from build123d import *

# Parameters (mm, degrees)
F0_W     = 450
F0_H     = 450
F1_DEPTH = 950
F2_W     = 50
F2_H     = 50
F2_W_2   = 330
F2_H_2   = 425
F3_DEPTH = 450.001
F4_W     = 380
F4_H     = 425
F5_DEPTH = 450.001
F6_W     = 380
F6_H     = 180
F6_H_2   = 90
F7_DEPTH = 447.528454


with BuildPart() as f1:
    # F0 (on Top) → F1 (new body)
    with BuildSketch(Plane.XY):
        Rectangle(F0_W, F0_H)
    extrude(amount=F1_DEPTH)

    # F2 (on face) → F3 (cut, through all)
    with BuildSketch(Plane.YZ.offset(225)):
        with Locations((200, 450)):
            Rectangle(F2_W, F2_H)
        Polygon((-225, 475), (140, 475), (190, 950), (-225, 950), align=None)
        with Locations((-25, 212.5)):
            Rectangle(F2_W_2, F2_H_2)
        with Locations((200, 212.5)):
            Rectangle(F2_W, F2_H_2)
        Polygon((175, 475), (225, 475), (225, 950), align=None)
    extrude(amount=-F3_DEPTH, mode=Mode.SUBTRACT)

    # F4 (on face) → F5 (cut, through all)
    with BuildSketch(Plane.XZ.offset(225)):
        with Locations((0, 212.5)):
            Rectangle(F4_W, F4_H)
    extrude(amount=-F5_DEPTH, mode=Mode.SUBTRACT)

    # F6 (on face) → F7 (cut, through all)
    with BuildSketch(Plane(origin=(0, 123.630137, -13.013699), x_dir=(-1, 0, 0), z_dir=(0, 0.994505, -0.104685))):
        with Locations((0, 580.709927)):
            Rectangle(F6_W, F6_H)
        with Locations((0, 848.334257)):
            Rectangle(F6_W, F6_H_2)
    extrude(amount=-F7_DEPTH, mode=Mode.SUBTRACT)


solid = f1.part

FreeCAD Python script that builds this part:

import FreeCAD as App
import Part
import Sketcher

doc = App.newDocument("Part")
body = doc.addObject("PartDesign::Body", "Body")

# Sketch on XY plane
sketch1 = doc.addObject("Sketcher::SketchObject", "Sketch")
body.addObject(sketch1)
sketch1.AttachmentSupport = (doc.XY_Plane, [""])
sketch1.MapMode = "FlatFace"
sketch1.addGeometry([
    Part.LineSegment(App.Vector(-225, 225, 0), App.Vector(-225, -225, 0)),
    Part.LineSegment(App.Vector(-225, -225, 0), App.Vector(225, -225, 0)),
    Part.LineSegment(App.Vector(225, -225, 0), App.Vector(225, 225, 0)),
    Part.LineSegment(App.Vector(225, 225, 0), App.Vector(-225, 225, 0)),
], False)
sketch1.addConstraint([
    Sketcher.Constraint("Coincident", 0, 2, 1, 1),
    Sketcher.Constraint("Coincident", 1, 2, 2, 1),
    Sketcher.Constraint("Coincident", 2, 2, 3, 1),
    Sketcher.Constraint("Coincident", 3, 2, 0, 1),
    Sketcher.Constraint("Vertical", 0),
    Sketcher.Constraint("Horizontal", 1),
    Sketcher.Constraint("Vertical", 2),
    Sketcher.Constraint("Horizontal", 3),
    Sketcher.Constraint("Symmetric", 0, 2, 2, 2, -1, 1),
    Sketcher.Constraint("Equal", 3, 0),
    Sketcher.Constraint("DistanceX", 1, 1, 1, 2, 450.0),
])
pad1 = doc.addObject("PartDesign::Pad", "Pad")
body.addObject(pad1)
pad1.Profile = sketch1
pad1.Length = 950

# Sketch on YZ plane
sketch2 = doc.addObject("Sketcher::SketchObject", "Sketch001")
body.addObject(sketch2)
sketch2.AttachmentSupport = (doc.YZ_Plane, [""])
sketch2.MapMode = "FlatFace"
sketch2.AttachmentOffset = App.Placement(App.Vector(0, 0, 225), App.Rotation())
sketch2.addGeometry([
    Part.LineSegment(App.Vector(175, 475, 0), App.Vector(175, 0, 0)),  # 0
    Part.LineSegment(App.Vector(175, 0, 0), App.Vector(225, 0, 0)),  # 1
    Part.LineSegment(App.Vector(225, 0, 0), App.Vector(225, 950, 0)),  # 2
    Part.LineSegment(App.Vector(225, 950, 0), App.Vector(175, 475, 0)),  # 3
    Part.LineSegment(App.Vector(-225, 475, 0), App.Vector(140, 475, 0)),  # 4
    Part.LineSegment(App.Vector(140, 475, 0), App.Vector(190, 950, 0)),  # 5
    Part.LineSegment(App.Vector(190, 950, 0), App.Vector(-225, 950, 0)),  # 6
    Part.LineSegment(App.Vector(-225, 950, 0), App.Vector(-225, 475, 0)),  # 7
    Part.LineSegment(App.Vector(-190, 425, 0), App.Vector(-190, 0, 0)),  # 8
    Part.LineSegment(App.Vector(-190, 0, 0), App.Vector(140, 0, 0)),  # 9
    Part.LineSegment(App.Vector(140, 0, 0), App.Vector(140, 425, 0)),  # 10
    Part.LineSegment(App.Vector(140, 425, 0), App.Vector(-190, 425, 0)),  # 11
], False)
sketch2.addConstraint([
    Sketcher.Constraint("Coincident", 0, 2, 1, 1),
    Sketcher.Constraint("Coincident", 1, 2, 2, 1),
    Sketcher.Constraint("Coincident", 2, 2, 3, 1),
    Sketcher.Constraint("Coincident", 3, 2, 0, 1),
    Sketcher.Constraint("Coincident", 4, 2, 5, 1),
    Sketcher.Constraint("Coincident", 5, 2, 6, 1),
    Sketcher.Constraint("Coincident", 6, 2, 7, 1),
    Sketcher.Constraint("Coincident", 7, 2, 4, 1),
    Sketcher.Constraint("Coincident", 8, 2, 9, 1),
    Sketcher.Constraint("Coincident", 9, 2, 10, 1),
    Sketcher.Constraint("Coincident", 10, 2, 11, 1),
    Sketcher.Constraint("Coincident", 11, 2, 8, 1),
    Sketcher.Constraint("Vertical", 0),
    Sketcher.Constraint("Horizontal", 1),
    Sketcher.Constraint("Vertical", 2),
    Sketcher.Constraint("Horizontal", 4),
    Sketcher.Constraint("Horizontal", 6),
    Sketcher.Constraint("Vertical", 7),
    Sketcher.Constraint("Vertical", 8),
    Sketcher.Constraint("Horizontal", 9),
    Sketcher.Constraint("Vertical", 10),
    Sketcher.Constraint("Horizontal", 11),
    Sketcher.Constraint("Symmetric", 2, 2, 6, 2, -2),
    Sketcher.Constraint("PointOnObject", 0, 2, -1),
    Sketcher.Constraint("PointOnObject", 8, 2, -1),
    Sketcher.Constraint("Parallel", 3, 5),
    Sketcher.Constraint("Horizontal", 3, 2, 4, 2),
    Sketcher.Constraint("Vertical", 4, 2, 9, 2),
    Sketcher.Constraint("Equal", 0, 7),
    Sketcher.Constraint("DistanceX", 1, 1, 1, 2, 50.0),
    Sketcher.Constraint("DistanceX", 4, 1, 4, 2, 365.0),
    Sketcher.Constraint("DistanceX", 9, 1, 9, 2, 330.0),
    Sketcher.Constraint("DistanceY", 0, 2, 0, 1, 475.0),
    Sketcher.Constraint("DistanceY", 8, 2, 8, 1, 425.0),
    Sketcher.Constraint("DistanceX", -1, 1, 0, 2, 175.0),
])
pocket1 = doc.addObject("PartDesign::Pocket", "Pocket")
body.addObject(pocket1)
pocket1.Profile = sketch2
pocket1.Type = "ThroughAll"

# Sketch on XZ plane
sketch3 = doc.addObject("Sketcher::SketchObject", "Sketch002")
body.addObject(sketch3)
sketch3.AttachmentSupport = (doc.XZ_Plane, [""])
sketch3.MapMode = "FlatFace"
sketch3.AttachmentOffset = App.Placement(App.Vector(0, 0, 225), App.Rotation())
sketch3.addGeometry([
    Part.LineSegment(App.Vector(-190, 425, 0), App.Vector(-190, 0, 0)),
    Part.LineSegment(App.Vector(-190, 0, 0), App.Vector(190, 0, 0)),
    Part.LineSegment(App.Vector(190, 0, 0), App.Vector(190, 425, 0)),
    Part.LineSegment(App.Vector(190, 425, 0), App.Vector(-190, 425, 0)),
], False)
sketch3.addConstraint([
    Sketcher.Constraint("Coincident", 0, 2, 1, 1),
    Sketcher.Constraint("Coincident", 1, 2, 2, 1),
    Sketcher.Constraint("Coincident", 2, 2, 3, 1),
    Sketcher.Constraint("Coincident", 3, 2, 0, 1),
    Sketcher.Constraint("Vertical", 0),
    Sketcher.Constraint("Horizontal", 1),
    Sketcher.Constraint("Vertical", 2),
    Sketcher.Constraint("Horizontal", 3),
    Sketcher.Constraint("Symmetric", 0, 2, 1, 2, -1, 1),
    Sketcher.Constraint("DistanceX", 1, 1, 1, 2, 380.0),
    Sketcher.Constraint("DistanceY", 0, 2, 0, 1, 425.0),
])
pocket2 = doc.addObject("PartDesign::Pocket", "Pocket001")
body.addObject(pocket2)
pocket2.Profile = sketch3
pocket2.Type = "ThroughAll"

# Sketch on an angled plane
sketch4 = doc.addObject("Sketcher::SketchObject", "Sketch003")
body.addObject(sketch4)
sketch4.Placement = App.Placement(App.Vector(0, 123.630137, -13.013699), App.Rotation(App.Vector(-1, 0, 0), App.Vector(0, 0.104685045, 0.994505426), App.Vector(0, 0.994505426, -0.104685045), "ZXY"))
sketch4.addGeometry([
    Part.LineSegment(App.Vector(-190, 671, 0), App.Vector(-190, 491, 0)),  # 0
    Part.LineSegment(App.Vector(-190, 491, 0), App.Vector(190, 491, 0)),  # 1
    Part.LineSegment(App.Vector(190, 491, 0), App.Vector(190, 671, 0)),  # 2
    Part.LineSegment(App.Vector(190, 671, 0), App.Vector(-190, 671, 0)),  # 3
    Part.LineSegment(App.Vector(-190, 893, 0), App.Vector(-190, 803, 0)),  # 4
    Part.LineSegment(App.Vector(-190, 803, 0), App.Vector(190, 803, 0)),  # 5
    Part.LineSegment(App.Vector(190, 803, 0), App.Vector(190, 893, 0)),  # 6
    Part.LineSegment(App.Vector(190, 893, 0), App.Vector(-190, 893, 0)),  # 7
], False)
sketch4.addConstraint([
    Sketcher.Constraint("Coincident", 0, 2, 1, 1),
    Sketcher.Constraint("Coincident", 1, 2, 2, 1),
    Sketcher.Constraint("Coincident", 2, 2, 3, 1),
    Sketcher.Constraint("Coincident", 3, 2, 0, 1),
    Sketcher.Constraint("Coincident", 4, 2, 5, 1),
    Sketcher.Constraint("Coincident", 5, 2, 6, 1),
    Sketcher.Constraint("Coincident", 6, 2, 7, 1),
    Sketcher.Constraint("Coincident", 7, 2, 4, 1),
    Sketcher.Constraint("Vertical", 0),
    Sketcher.Constraint("Horizontal", 1),
    Sketcher.Constraint("Vertical", 2),
    Sketcher.Constraint("Horizontal", 3),
    Sketcher.Constraint("Vertical", 4),
    Sketcher.Constraint("Horizontal", 5),
    Sketcher.Constraint("Vertical", 6),
    Sketcher.Constraint("Horizontal", 7),
    Sketcher.Constraint("Vertical", 3, 2, 4, 2),
    Sketcher.Constraint("Vertical", 2, 2, 5, 2),
    Sketcher.Constraint("DistanceX", 1, 1, 1, 2, 380.0),
    Sketcher.Constraint("DistanceY", 0, 2, 0, 1, 180.0),
    Sketcher.Constraint("DistanceY", 4, 2, 4, 1, 90.0),
    Sketcher.Constraint("DistanceX", 0, 2, -1, 1, 190.0),
    Sketcher.Constraint("DistanceY", 3, 2, 4, 2, 132.62433),
    Sketcher.Constraint("DistanceY", -1, 1, 0, 2, 490.709927),
])
pocket3 = doc.addObject("PartDesign::Pocket", "Pocket002")
body.addObject(pocket3)
pocket3.Profile = sketch4
pocket3.Type = "ThroughAll"

doc.recompute()
